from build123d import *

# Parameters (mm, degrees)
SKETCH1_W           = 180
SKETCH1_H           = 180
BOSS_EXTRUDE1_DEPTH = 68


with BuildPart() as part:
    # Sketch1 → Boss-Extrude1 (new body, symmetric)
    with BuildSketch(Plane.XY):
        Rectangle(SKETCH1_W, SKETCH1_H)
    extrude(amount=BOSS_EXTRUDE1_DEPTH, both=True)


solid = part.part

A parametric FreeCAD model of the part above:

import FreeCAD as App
import Part
import Sketcher

doc = App.newDocument("Part")
body = doc.addObject("PartDesign::Body", "Body")

# Sketch on XY plane
sketch1 = doc.addObject("Sketcher::SketchObject", "Sketch")
body.addObject(sketch1)
sketch1.AttachmentSupport = (doc.XY_Plane, [""])
sketch1.MapMode = "FlatFace"
sketch1.addGeometry(Part.LineSegment(App.Vector(-90, 90, 0), App.Vector(-90, -90, 0)), False)
sketch1.addGeometry(Part.LineSegment(App.Vector(-90, -90, 0), App.Vector(90, -90, 0)), False)
sketch1.addGeometry(Part.LineSegment(App.Vector(90, -90, 0), App.Vector(90, 90, 0)), False)
sketch1.addGeometry(Part.LineSegment(App.Vector(90, 90, 0), App.Vector(-90, 90, 0)), False)
sketch1.addConstraint(Sketcher.Constraint("Coincident", 0, 2, 1, 1))
sketch1.addConstraint(Sketcher.Constraint("Coincident", 1, 2, 2, 1))
sketch1.addConstraint(Sketcher.Constraint("Coincident", 2, 2, 3, 1))
sketch1.addConstraint(Sketcher.Constraint("Coincident", 3, 2, 0, 1))
sketch1.addConstraint(Sketcher.Constraint("Vertical", 0))
sketch1.addConstraint(Sketcher.Constraint("Horizontal", 1))
sketch1.addConstraint(Sketcher.Constraint("Vertical", 2))
sketch1.addConstraint(Sketcher.Constraint("Horizontal", 3))
sketch1.addConstraint(Sketcher.Constraint("Symmetric", 0, 2, 2, 2, -1, 1))
sketch1.addConstraint(Sketcher.Constraint("Equal", 3, 0))
sketch1.addConstraint(Sketcher.Constraint("DistanceX", 1, 1, 1, 2, 180.0))
pad1 = doc.addObject("PartDesign::Pad", "Pad")
body.addObject(pad1)
pad1.Profile = sketch1
pad1.Length = 136
pad1.Midplane = True

doc.recompute()
